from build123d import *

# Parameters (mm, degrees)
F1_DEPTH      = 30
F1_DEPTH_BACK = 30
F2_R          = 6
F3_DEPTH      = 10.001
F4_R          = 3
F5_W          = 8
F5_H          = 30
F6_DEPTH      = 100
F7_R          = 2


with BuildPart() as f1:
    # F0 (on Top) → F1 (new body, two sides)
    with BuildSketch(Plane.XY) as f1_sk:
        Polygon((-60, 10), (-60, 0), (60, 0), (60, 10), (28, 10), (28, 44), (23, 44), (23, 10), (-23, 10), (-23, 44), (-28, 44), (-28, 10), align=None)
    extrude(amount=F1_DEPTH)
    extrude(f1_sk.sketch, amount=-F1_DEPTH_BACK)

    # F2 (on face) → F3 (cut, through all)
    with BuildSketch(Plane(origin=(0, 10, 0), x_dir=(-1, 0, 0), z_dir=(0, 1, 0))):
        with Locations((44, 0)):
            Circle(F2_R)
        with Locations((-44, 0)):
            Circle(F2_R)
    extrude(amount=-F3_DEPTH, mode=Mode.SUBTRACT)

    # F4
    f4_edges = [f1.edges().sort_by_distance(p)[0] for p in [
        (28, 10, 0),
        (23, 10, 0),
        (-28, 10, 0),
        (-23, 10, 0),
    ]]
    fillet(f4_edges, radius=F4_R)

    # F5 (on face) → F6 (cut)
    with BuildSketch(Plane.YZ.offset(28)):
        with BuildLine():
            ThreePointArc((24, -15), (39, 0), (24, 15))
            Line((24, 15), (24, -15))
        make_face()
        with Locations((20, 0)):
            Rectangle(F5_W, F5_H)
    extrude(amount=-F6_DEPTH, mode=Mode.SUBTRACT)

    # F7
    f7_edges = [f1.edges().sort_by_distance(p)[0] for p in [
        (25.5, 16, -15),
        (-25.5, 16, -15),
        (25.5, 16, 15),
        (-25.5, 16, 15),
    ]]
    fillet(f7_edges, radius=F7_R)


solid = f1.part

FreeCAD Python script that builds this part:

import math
import FreeCAD as App
import Part
import Sketcher
Q = App.Units.Quantity


def edges_at(feature, points):
    """Names of the edges that pass closest to the given points."""
    edges = feature.Shape.Edges
    near = lambda p: min(range(len(edges)), key=lambda i: edges[i].distToShape(Part.Vertex(*p))[0])
    return sorted({f"Edge{near(p) + 1}" for p in points})


def add_polygon(sketch, points):
    """Adds a closed chain of lines whose ends are joined by coincident constraints."""
    first, n = sketch.GeometryCount, len(points)
    for a, b in zip(points, points[1:] + points[:1]):
        sketch.addGeometry(Part.LineSegment(App.Vector(*a, 0), App.Vector(*b, 0)), False)
    for i in range(n):
        sketch.addConstraint(Sketcher.Constraint("Coincident", first + i, 2, first + (i + 1) % n, 1))

doc = App.newDocument("Part")
body = doc.addObject("PartDesign::Body", "Body")

sketch1 = body.newObject("Sketcher::SketchObject", "Sketch")
sketch1.AttachmentSupport = (doc.getObject("XY_Plane"), [""])
sketch1.MapMode = "FlatFace"
add_polygon(sketch1, [(-60, 10), (-60, 0), (60, 0), (60, 10), (28, 10), (28, 44), (23, 44), (23, 10), (-23, 10), (-23, 44), (-28, 44), (-28, 10)])
sketch1.addConstraint([
    Sketcher.Constraint("Vertical", 0),
    Sketcher.Constraint("Horizontal", 1),
    Sketcher.Constraint("Vertical", 2),
    Sketcher.Constraint("Horizontal", 3),
    Sketcher.Constraint("Vertical", 4),
    Sketcher.Constraint("Horizontal", 5),
    Sketcher.Constraint("Vertical", 6),
    Sketcher.Constraint("Horizontal", 7),
    Sketcher.Constraint("Vertical", 8),
    Sketcher.Constraint("Horizontal", 9),
    Sketcher.Constraint("Vertical", 10),
    Sketcher.Constraint("Horizontal", 11),
    Sketcher.Constraint("Symmetric", 0, 2, 1, 2, -1, 1),
    Sketcher.Constraint("Symmetric", 5, 2, 8, 2, -2),
    Sketcher.Constraint("Symmetric", 3, 2, 10, 2, -2),
    Sketcher.Constraint("Horizontal", 3, 2, 6, 2),
    Sketcher.Constraint("DistanceX", 1, 1, 1, 2, Q("120 mm")),
    Sketcher.Constraint("DistanceX", 3, 2, 3, 1, Q("32 mm")),
    Sketcher.Constraint("DistanceX", 5, 2, 5, 1, Q("5 mm")),
    Sketcher.Constraint("DistanceY", 0, 2, 0, 1, Q("10 mm")),
    Sketcher.Constraint("DistanceY", 4, 1, 4, 2, Q("34 mm")),
])
pad1 = body.newObject("PartDesign::Pad", "Pad")
pad1.Profile = sketch1
pad1.Type = "TwoLengths"
pad1.Length = 30
pad1.Length2 = 30

sketch2 = body.newObject("Sketcher::SketchObject", "Sketch001")
sketch2.AttachmentSupport = (doc.getObject("XZ_Plane"), [""])
sketch2.MapMode = "FlatFace"
sketch2.AttachmentOffset = App.Placement(App.Vector(0, 0, -10), App.Rotation())
sketch2.addGeometry([
    Part.Circle(App.Vector(-44, 0, 0), App.Vector(0, 0, 1), 6),
    Part.Circle(App.Vector(44, 0, 0), App.Vector(0, 0, 1), 6),
], False)
sketch2.addConstraint([
    Sketcher.Constraint("Equal", 0, 1),
    Sketcher.Constraint("Symmetric", 0, 3, 1, 3, -1, 1),
    Sketcher.Constraint("PointOnObject", 0, 3, -1),
    Sketcher.Constraint("Diameter", 0, Q("12 mm")),
    Sketcher.Constraint("DistanceX", 0, 3, -1, 1, Q("44 mm")),
])
pocket1 = body.newObject("PartDesign::Pocket", "Pocket")
pocket1.Profile = sketch2
pocket1.Type = "ThroughAll"
pocket1.Reversed = True
doc.recompute()

fillet = body.newObject("PartDesign::Fillet", "Fillet")
fillet.Base = (pocket1, edges_at(pocket1, [
    (28, 10, 0),
    (23, 10, 0),
    (-28, 10, 0),
    (-23, 10, 0),
]))
fillet.Radius = 3

sketch3 = body.newObject("Sketcher::SketchObject", "Sketch002")
sketch3.AttachmentSupport = (doc.getObject("YZ_Plane"), [""])
sketch3.MapMode = "FlatFace"
sketch3.AttachmentOffset = App.Placement(App.Vector(0, 0, 28), App.Rotation())
sketch3.addGeometry([
    Part.ArcOfCircle(Part.Circle(App.Vector(24, 0, 0), App.Vector(0, 0, 1), 15), math.radians(-90), math.radians(90)),
    Part.LineSegment(App.Vector(24, 15, 0), App.Vector(16, 15, 0)),
    Part.LineSegment(App.Vector(16, 15, 0), App.Vector(16, -15, 0)),
    Part.LineSegment(App.Vector(16, -15, 0), App.Vector(24, -15, 0)),
], False)
sketch3.addConstraint([
    Sketcher.Constraint("Tangent", 0, 2, 1, 1),
    Sketcher.Constraint("Coincident", 1, 2, 2, 1),
    Sketcher.Constraint("Coincident", 2, 2, 3, 1),
    Sketcher.Constraint("Tangent", 3, 2, 0, 1),
    Sketcher.Constraint("Horizontal", 1),
    Sketcher.Constraint("Vertical", 2),
    Sketcher.Constraint("Horizontal", 3),
    Sketcher.Constraint("PointOnObject", 0, 3, -1),
    Sketcher.Constraint("Radius", 0, Q("15 mm")),
    Sketcher.Constraint("DistanceX", 1, 2, 1, 1, Q("8 mm")),
    Sketcher.Constraint("DistanceX", -1, 1, 0, 3, Q("24 mm")),
])
pocket2 = body.newObject("PartDesign::Pocket", "Pocket001")
pocket2.Profile = sketch3
pocket2.Length = 100
doc.recompute()

fillet2 = body.newObject("PartDesign::Fillet", "Fillet001")
fillet2.Base = (pocket2, edges_at(pocket2, [
    (25.5, 16, -15),
    (-25.5, 16, -15),
    (25.5, 16, 15),
    (-25.5, 16, 15),
]))
fillet2.Radius = 2

doc.recompute()
